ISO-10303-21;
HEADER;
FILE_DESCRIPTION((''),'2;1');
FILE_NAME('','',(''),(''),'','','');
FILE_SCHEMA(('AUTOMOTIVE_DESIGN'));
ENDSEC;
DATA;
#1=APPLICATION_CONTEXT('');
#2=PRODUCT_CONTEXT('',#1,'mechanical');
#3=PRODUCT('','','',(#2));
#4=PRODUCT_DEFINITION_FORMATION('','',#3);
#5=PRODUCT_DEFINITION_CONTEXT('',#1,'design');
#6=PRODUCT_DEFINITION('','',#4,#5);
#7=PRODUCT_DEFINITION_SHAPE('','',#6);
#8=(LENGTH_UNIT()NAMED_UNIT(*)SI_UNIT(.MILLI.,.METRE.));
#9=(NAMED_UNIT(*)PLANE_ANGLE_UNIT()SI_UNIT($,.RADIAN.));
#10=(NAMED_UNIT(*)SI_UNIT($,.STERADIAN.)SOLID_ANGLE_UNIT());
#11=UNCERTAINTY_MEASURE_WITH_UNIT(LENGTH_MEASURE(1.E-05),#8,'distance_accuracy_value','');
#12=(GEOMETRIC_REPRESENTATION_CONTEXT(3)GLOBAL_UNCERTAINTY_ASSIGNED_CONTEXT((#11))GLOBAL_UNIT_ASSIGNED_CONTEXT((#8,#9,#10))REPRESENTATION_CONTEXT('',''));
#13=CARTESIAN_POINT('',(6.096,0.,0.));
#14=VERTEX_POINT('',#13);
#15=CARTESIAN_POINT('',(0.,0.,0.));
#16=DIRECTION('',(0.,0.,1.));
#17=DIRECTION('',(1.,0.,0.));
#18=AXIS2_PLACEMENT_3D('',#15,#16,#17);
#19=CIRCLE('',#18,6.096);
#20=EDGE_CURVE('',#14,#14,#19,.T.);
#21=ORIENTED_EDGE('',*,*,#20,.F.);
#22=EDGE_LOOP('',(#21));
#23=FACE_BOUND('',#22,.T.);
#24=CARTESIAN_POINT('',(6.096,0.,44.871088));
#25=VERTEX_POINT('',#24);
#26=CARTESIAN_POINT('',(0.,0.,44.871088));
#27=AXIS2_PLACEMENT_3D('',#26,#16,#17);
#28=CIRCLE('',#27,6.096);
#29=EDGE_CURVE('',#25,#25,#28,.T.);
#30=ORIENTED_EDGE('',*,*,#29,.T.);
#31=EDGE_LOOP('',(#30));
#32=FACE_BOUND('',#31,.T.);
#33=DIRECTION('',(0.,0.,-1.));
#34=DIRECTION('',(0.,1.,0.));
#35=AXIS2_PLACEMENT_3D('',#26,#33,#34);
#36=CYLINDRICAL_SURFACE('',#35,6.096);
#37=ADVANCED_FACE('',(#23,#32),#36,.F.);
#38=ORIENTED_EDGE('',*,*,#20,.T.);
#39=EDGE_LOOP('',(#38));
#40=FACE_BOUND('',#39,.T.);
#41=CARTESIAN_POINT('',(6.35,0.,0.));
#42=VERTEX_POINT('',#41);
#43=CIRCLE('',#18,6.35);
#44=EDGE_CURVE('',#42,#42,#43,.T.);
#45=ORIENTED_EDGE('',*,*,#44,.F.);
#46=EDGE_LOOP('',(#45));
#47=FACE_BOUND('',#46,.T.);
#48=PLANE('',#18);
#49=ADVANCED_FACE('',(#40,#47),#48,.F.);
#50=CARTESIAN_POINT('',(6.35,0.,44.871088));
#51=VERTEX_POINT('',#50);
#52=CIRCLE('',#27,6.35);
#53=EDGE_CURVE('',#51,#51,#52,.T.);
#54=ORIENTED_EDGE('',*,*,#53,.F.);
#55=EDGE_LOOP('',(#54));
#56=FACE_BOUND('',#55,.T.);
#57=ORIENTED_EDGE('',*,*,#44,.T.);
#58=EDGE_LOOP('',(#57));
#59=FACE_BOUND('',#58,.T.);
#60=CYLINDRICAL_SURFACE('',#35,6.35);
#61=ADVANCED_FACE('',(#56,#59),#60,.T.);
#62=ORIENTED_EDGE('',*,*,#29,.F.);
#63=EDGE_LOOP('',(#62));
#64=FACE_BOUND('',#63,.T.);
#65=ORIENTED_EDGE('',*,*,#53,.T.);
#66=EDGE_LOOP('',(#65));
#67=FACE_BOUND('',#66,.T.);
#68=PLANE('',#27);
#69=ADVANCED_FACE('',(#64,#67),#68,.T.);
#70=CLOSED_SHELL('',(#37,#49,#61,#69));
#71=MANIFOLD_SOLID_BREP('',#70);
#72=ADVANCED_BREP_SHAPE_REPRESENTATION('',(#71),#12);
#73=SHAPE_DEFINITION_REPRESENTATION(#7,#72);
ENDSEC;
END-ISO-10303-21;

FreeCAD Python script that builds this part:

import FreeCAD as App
import Part
import Sketcher
from FreeCAD import Vector
Q = App.Units.Quantity

doc = App.newDocument("Part")
params = doc.addObject("Spreadsheet::Sheet", "Params")
for row, (alias, value) in enumerate([
    ("sketch1_diameter", "0.5 in"),
    ("sketch1_diameter2", "0.48 in"),
], start=1):
    params.set(f"A{row}", alias)
    params.set(f"B{row}", "=" + value)
    params.setAlias(f"B{row}", alias)

body = doc.addObject("PartDesign::Body", "Body")

# Sketch on XY plane
sketch1 = body.newObject("Sketcher::SketchObject", "Sketch")
sketch1.AttachmentSupport = (doc.getObject("XY_Plane"), [""])
sketch1.MapMode = "FlatFace"
sketch1.addGeometry([
    Part.Circle(Vector(0, 0, 0), Vector(0, 0, 1), 6),
    Part.Circle(Vector(0, 0, 0), Vector(0, 0, 1), 6),
], False)
sketch1.addConstraint([
    Sketcher.Constraint("Coincident", 0, 3, -1, 1),
    Sketcher.Constraint("Coincident", 1, 3, -1, 1),
    Sketcher.Constraint("Diameter", 0, Q("0.5 in")),
    Sketcher.Constraint("Diameter", 1, Q("0.48 in")),
])
sketch1.setExpression("Constraints[2]", "Params.sketch1_diameter")
sketch1.setExpression("Constraints[3]", "Params.sketch1_diameter2")

# Sketch on XZ plane
sketch2 = body.newObject("Sketcher::SketchObject", "Sketch001")
sketch2.AttachmentSupport = (doc.getObject("XZ_Plane"), [""])
sketch2.MapMode = "FlatFace"
sketch2.addGeometry(Part.LineSegment(Vector(0, 0, 0), Vector(0, 45, 0)), False)
sketch2.addConstraint([
    Sketcher.Constraint("Vertical", 0),
    Sketcher.Constraint("Coincident", 0, 1, -1, 1),
    Sketcher.Constraint("DistanceY", 0, 1, 0, 2, 44.871088),
])
doc.recompute()

additivepipe = body.newObject("PartDesign::AdditivePipe", "AdditivePipe")
additivepipe.Profile = sketch1
additivepipe.Spine = (sketch2, ["Edge1"])

doc.recompute()
